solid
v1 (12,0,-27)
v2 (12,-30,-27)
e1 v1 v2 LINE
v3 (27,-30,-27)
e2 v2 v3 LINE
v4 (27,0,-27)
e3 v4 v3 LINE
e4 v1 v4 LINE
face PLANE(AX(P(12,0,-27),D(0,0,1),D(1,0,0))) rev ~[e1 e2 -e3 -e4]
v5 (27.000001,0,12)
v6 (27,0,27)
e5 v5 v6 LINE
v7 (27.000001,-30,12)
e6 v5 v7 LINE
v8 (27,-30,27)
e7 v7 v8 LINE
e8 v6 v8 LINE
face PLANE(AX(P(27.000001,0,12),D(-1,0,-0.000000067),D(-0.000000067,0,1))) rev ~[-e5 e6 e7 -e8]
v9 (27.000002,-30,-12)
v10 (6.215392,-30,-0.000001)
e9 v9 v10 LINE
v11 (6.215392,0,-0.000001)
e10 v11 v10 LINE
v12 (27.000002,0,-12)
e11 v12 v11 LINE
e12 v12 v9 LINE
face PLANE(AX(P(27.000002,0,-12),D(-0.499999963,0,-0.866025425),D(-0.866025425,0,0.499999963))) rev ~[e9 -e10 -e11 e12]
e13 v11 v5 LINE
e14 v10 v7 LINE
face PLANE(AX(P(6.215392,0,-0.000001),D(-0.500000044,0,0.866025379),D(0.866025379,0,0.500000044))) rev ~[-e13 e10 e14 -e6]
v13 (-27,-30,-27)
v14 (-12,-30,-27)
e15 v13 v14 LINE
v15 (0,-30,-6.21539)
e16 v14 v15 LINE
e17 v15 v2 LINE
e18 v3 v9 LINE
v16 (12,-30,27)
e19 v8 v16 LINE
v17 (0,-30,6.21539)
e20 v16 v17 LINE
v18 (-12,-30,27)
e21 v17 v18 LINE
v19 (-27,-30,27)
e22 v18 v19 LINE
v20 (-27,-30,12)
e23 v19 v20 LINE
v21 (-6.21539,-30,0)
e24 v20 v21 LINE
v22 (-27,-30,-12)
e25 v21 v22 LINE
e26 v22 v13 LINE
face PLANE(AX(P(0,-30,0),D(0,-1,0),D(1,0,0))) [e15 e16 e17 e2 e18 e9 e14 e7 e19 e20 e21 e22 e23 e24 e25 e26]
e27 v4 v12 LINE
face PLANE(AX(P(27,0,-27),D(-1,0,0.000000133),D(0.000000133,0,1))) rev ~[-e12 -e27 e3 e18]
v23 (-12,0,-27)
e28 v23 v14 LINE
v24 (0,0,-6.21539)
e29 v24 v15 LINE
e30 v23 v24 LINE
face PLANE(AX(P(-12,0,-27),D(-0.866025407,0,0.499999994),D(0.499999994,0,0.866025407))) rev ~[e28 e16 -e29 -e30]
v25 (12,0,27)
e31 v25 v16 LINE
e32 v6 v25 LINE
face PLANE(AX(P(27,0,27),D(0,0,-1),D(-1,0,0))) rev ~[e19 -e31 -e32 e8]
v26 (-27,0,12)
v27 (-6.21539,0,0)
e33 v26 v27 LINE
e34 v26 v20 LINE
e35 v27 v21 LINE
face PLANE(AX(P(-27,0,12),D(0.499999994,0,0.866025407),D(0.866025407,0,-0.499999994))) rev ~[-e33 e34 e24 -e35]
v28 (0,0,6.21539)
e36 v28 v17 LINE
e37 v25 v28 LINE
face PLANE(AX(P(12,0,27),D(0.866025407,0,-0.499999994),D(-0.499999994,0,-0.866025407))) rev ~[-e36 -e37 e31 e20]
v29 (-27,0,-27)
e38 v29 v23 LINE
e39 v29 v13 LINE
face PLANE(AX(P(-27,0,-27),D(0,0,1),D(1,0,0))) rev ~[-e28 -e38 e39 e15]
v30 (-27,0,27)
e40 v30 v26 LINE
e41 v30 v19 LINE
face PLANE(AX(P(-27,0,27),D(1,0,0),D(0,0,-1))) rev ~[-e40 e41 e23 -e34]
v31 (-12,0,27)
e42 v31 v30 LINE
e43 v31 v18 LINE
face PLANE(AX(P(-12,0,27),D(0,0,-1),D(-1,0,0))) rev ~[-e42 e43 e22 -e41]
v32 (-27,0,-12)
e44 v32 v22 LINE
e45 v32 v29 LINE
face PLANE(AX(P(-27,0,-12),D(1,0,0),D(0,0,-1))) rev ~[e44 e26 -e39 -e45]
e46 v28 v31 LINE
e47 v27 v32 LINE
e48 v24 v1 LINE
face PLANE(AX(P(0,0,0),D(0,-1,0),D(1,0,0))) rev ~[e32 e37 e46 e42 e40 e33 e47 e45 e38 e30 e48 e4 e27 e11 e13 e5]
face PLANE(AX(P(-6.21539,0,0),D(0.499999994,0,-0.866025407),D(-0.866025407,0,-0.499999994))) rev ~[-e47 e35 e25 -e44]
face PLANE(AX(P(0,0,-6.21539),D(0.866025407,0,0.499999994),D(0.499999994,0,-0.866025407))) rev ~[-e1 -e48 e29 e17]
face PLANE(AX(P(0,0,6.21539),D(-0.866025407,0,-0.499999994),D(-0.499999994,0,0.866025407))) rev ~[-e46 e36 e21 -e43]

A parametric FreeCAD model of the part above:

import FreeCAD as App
import Part
import Sketcher

V = App.Vector
Q = App.Units.Quantity

doc = App.newDocument("Part")
body = doc.addObject("PartDesign::Body", "Body")

sketch1 = body.newObject("Sketcher::SketchObject", "Sketch")
sketch1.AttachmentSupport = (doc.getObject("XZ_Plane"), [""])
sketch1.MapMode = "FlatFace"
sketch1.addGeometry([
    Part.LineSegment(V(12, 27, 0), V(0, 6, 0)),
    Part.LineSegment(V(0, 6, 0), V(-12, 27, 0)),
    Part.LineSegment(V(-12, 27, 0), V(-27, 27, 0)),
    Part.LineSegment(V(-27, 27, 0), V(-27, 12, 0)),
    Part.LineSegment(V(-27, 12, 0), V(-6, 0, 0)),
    Part.LineSegment(V(-6, 0, 0), V(-27, -12, 0)),
    Part.LineSegment(V(-27, -12, 0), V(-27, -27, 0)),
    Part.LineSegment(V(-27, -27, 0), V(-12, -27, 0)),
    Part.LineSegment(V(-12, -27, 0), V(0, -6, 0)),
    Part.LineSegment(V(0, -6, 0), V(12, -27, 0)),
    Part.LineSegment(V(12, -27, 0), V(27, -27, 0)),
    Part.LineSegment(V(27, -27, 0), V(27, -12, 0)),
    Part.LineSegment(V(27, -12, 0), V(6, 0, 0)),
    Part.LineSegment(V(6, 0, 0), V(27, 12, 0)),
    Part.LineSegment(V(27, 12, 0), V(27, 27, 0)),
    Part.LineSegment(V(27, 27, 0), V(12, 27, 0)),
], False)
sketch1.addConstraint([
    Sketcher.Constraint("Coincident", 0, 2, 1, 1),
    Sketcher.Constraint("Coincident", 1, 2, 2, 1),
    Sketcher.Constraint("Coincident", 2, 2, 3, 1),
    Sketcher.Constraint("Coincident", 3, 2, 4, 1),
    Sketcher.Constraint("Coincident", 4, 2, 5, 1),
    Sketcher.Constraint("Coincident", 5, 2, 6, 1),
    Sketcher.Constraint("Coincident", 6, 2, 7, 1),
    Sketcher.Constraint("Coincident", 7, 2, 8, 1),
    Sketcher.Constraint("Coincident", 8, 2, 9, 1),
    Sketcher.Constraint("Coincident", 9, 2, 10, 1),
    Sketcher.Constraint("Coincident", 10, 2, 11, 1),
    Sketcher.Constraint("Coincident", 11, 2, 12, 1),
    Sketcher.Constraint("Coincident", 12, 2, 13, 1),
    Sketcher.Constraint("Coincident", 13, 2, 14, 1),
    Sketcher.Constraint("Coincident", 14, 2, 15, 1),
    Sketcher.Constraint("Coincident", 15, 2, 0, 1),
    Sketcher.Constraint("Horizontal", 2),
    Sketcher.Constraint("Vertical", 3),
    Sketcher.Constraint("Vertical", 6),
    Sketcher.Constraint("Horizontal", 7),
    Sketcher.Constraint("Horizontal", 10),
    Sketcher.Constraint("Vertical", 11),
    Sketcher.Constraint("Vertical", 14),
    Sketcher.Constraint("Horizontal", 15),
    Sketcher.Constraint("Symmetric", 0, 2, 8, 2, -1, 1),
    Sketcher.Constraint("Symmetric", 1, 2, 9, 2, -1, 1),
    Sketcher.Constraint("Symmetric", 3, 2, 11, 2, -1, 1),
    Sketcher.Constraint("Symmetric", 4, 2, 12, 2, -1, 1),
    Sketcher.Constraint("Symmetric", 5, 2, 13, 2, -1, 1),
    Sketcher.Constraint("Symmetric", 7, 2, 15, 2, -1, 1),
    Sketcher.Constraint("Symmetric", 7, 2, 9, 2, -2),
    Sketcher.Constraint("Symmetric", 5, 2, 11, 2, -2),
    Sketcher.Constraint("PointOnObject", 0, 2, -2),
    Sketcher.Constraint("PointOnObject", 4, 2, -1),
    Sketcher.Constraint("Perpendicular", 0, 4),
    Sketcher.Constraint("Equal", 15, 3),
    Sketcher.Constraint("Equal", 1, 4),
    Sketcher.Constraint("DistanceX", 2, 2, 2, 1, 15.0),
    Sketcher.Constraint("Angle", 0, Q("-120 deg")),
    Sketcher.Constraint("Distance", 0, 24.0),
])
pad1 = body.newObject("PartDesign::Pad", "Pad")
pad1.Profile = sketch1
pad1.Length = 30

doc.recompute()
